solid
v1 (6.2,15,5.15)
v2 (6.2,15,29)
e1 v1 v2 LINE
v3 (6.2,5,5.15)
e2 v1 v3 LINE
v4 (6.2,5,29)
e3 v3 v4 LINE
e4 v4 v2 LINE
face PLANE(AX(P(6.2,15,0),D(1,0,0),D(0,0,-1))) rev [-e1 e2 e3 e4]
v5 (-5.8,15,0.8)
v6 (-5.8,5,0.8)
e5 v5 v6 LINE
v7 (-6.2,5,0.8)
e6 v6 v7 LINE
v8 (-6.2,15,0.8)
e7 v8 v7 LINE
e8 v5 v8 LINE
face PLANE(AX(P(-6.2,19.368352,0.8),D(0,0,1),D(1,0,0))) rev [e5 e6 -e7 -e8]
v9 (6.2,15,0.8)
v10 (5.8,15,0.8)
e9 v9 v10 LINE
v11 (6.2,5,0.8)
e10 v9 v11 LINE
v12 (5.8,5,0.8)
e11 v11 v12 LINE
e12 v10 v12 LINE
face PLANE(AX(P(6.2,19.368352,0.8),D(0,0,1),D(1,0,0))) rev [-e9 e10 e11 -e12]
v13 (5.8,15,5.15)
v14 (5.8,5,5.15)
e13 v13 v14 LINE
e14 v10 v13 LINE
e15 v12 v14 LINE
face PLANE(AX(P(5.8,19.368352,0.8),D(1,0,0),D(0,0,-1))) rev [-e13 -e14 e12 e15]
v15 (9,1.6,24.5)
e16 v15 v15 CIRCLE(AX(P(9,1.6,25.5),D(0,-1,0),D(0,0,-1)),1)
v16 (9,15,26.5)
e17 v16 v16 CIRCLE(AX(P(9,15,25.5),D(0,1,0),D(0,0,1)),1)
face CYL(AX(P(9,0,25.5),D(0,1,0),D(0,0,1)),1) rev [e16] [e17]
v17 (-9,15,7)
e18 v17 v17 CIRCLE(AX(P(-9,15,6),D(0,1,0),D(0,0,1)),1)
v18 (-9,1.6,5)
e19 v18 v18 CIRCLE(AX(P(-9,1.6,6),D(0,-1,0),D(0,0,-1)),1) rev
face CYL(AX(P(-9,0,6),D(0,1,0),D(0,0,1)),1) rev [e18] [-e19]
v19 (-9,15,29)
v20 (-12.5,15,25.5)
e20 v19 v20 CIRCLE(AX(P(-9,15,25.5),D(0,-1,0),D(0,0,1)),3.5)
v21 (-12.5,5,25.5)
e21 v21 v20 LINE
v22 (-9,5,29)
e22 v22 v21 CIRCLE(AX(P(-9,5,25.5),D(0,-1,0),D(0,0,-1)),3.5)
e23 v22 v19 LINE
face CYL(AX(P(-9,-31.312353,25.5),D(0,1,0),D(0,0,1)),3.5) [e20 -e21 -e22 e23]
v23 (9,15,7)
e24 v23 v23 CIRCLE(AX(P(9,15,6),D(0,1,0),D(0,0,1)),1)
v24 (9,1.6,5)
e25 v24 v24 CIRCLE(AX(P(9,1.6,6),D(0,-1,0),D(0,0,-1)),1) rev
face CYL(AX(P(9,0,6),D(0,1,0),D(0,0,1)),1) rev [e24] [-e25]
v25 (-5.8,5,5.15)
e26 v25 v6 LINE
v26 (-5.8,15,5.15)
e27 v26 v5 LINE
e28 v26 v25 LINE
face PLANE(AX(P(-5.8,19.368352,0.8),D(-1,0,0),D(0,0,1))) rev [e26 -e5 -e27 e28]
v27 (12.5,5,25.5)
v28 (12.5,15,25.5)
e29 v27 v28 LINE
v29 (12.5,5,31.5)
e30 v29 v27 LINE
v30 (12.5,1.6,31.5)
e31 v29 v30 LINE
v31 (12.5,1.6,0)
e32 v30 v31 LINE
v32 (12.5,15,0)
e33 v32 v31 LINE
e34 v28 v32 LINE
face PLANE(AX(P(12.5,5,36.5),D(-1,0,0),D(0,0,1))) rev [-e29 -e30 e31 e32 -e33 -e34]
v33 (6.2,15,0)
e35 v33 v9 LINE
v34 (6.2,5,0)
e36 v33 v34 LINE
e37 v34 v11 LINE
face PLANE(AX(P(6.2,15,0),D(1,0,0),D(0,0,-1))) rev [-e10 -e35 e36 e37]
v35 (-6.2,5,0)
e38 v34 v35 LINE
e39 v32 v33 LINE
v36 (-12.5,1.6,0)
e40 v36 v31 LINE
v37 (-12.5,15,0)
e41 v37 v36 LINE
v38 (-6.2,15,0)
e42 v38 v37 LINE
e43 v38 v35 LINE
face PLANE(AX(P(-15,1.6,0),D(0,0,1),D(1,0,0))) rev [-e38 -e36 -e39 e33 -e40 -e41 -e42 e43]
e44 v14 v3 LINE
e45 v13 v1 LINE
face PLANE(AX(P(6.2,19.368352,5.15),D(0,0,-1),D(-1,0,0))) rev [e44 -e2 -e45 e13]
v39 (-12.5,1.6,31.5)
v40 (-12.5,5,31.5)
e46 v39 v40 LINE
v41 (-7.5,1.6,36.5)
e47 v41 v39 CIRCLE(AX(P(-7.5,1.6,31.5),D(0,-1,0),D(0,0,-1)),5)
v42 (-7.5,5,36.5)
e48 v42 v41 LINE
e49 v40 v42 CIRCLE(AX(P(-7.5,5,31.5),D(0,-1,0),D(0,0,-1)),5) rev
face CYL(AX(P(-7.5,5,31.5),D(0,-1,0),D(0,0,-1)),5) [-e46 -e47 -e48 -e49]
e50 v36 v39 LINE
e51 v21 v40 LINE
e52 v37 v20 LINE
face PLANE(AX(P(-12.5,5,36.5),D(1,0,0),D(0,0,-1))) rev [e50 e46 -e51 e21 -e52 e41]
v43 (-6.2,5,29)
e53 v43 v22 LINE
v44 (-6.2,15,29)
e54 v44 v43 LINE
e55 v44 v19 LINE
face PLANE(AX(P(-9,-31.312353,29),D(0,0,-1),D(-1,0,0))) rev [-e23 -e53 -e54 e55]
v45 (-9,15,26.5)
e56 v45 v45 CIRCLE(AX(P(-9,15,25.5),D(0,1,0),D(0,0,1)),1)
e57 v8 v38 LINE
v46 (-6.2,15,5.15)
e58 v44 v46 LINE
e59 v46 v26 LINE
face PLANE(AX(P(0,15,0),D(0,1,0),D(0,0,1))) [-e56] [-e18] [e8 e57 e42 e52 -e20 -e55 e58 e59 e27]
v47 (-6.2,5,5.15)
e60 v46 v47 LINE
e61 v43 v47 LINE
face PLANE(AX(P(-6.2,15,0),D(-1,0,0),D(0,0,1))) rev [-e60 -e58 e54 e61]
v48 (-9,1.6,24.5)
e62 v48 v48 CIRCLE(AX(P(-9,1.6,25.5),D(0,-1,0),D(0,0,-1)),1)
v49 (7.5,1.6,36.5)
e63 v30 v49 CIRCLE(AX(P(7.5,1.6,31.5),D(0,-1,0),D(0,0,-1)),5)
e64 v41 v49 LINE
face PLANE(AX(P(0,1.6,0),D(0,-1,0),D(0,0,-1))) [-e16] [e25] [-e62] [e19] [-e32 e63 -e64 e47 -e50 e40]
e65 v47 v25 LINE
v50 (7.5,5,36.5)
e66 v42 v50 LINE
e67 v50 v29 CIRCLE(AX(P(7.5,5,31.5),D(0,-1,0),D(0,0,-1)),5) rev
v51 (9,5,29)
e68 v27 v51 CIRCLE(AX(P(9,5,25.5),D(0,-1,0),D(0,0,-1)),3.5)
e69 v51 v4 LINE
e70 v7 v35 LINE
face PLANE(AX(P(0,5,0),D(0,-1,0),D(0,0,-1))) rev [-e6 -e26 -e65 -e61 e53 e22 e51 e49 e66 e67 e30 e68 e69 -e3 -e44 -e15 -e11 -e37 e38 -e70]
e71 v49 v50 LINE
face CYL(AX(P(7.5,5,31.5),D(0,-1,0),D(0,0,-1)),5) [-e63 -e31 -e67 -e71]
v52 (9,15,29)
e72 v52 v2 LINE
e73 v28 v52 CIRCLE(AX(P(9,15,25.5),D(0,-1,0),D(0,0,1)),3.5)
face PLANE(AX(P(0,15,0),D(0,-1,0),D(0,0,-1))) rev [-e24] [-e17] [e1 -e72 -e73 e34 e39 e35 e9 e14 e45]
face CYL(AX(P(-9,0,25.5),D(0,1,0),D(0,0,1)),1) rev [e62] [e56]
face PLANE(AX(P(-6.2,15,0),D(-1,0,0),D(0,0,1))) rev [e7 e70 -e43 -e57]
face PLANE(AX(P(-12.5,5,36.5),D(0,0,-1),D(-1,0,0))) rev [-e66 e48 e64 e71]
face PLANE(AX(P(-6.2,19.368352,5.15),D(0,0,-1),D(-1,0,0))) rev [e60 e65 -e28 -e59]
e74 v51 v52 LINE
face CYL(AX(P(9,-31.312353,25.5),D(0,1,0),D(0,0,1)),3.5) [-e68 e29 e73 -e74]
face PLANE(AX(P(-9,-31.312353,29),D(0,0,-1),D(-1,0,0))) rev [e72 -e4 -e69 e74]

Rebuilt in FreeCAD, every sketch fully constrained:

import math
import FreeCAD as App
import Part
import Sketcher
Q = App.Units.Quantity


def edges_at(feature, points):
    """Names of the edges that pass closest to the given points."""
    edges = feature.Shape.Edges
    near = lambda p: min(range(len(edges)), key=lambda i: edges[i].distToShape(Part.Vertex(*p))[0])
    return sorted({f"Edge{near(p) + 1}" for p in points})


def add_polygon(sketch, points):
    """Adds a closed chain of lines whose ends are joined by coincident constraints."""
    first, n = sketch.GeometryCount, len(points)
    for a, b in zip(points, points[1:] + points[:1]):
        sketch.addGeometry(Part.LineSegment(App.Vector(*a, 0), App.Vector(*b, 0)), False)
    for i in range(n):
        sketch.addConstraint(Sketcher.Constraint("Coincident", first + i, 2, first + (i + 1) % n, 1))

doc = App.newDocument("Part")
body = doc.addObject("PartDesign::Body", "Body")

# Sketch on XZ plane
sketch1 = doc.addObject("Sketcher::SketchObject", "Sketch")
body.addObject(sketch1)
sketch1.AttachmentSupport = (doc.XZ_Plane, [""])
sketch1.MapMode = "FlatFace"
add_polygon(sketch1, [(-15, 0), (-15, 12), (15, 12), (15, 0)])  # lines 0-3
sketch1.addConstraint(Sketcher.Constraint("Vertical", 0))
sketch1.addConstraint(Sketcher.Constraint("Horizontal", 1))
sketch1.addConstraint(Sketcher.Constraint("Vertical", 2))
sketch1.addConstraint(Sketcher.Constraint("Horizontal", 3))
sketch1.addConstraint(Sketcher.Constraint("Symmetric", 2, 2, 3, 2, -1, 1))
sketch1.addConstraint(Sketcher.Constraint("DistanceX", 1, 1, 1, 2, Q("30 mm")))
sketch1.addConstraint(Sketcher.Constraint("DistanceY", 0, 1, 0, 2, Q("12.5 mm")))
pad1 = doc.addObject("PartDesign::Pad", "Pad")
body.addObject(pad1)
pad1.Profile = sketch1
pad1.Length = 1.6
pad1.Reversed = True

# Sketch on XZ plane
sketch2 = doc.addObject("Sketcher::SketchObject", "Sketch001")
body.addObject(sketch2)
sketch2.AttachmentSupport = (doc.XZ_Plane, [""])
sketch2.MapMode = "FlatFace"
sketch2.AttachmentOffset = App.Placement(App.Vector(0, 0, -1.6), App.Rotation())
add_polygon(sketch2, [(-12, 0), (-12, 36), (12, 36), (12, 0)])  # lines 0-3
sketch2.addConstraint(Sketcher.Constraint("Vertical", 0))
sketch2.addConstraint(Sketcher.Constraint("Horizontal", 1))
sketch2.addConstraint(Sketcher.Constraint("Vertical", 2))
sketch2.addConstraint(Sketcher.Constraint("Horizontal", 3))
sketch2.addConstraint(Sketcher.Constraint("Symmetric", 2, 2, 3, 2, -1, 1))
sketch2.addConstraint(Sketcher.Constraint("DistanceX", 1, 1, 1, 2, Q("25 mm")))
sketch2.addConstraint(Sketcher.Constraint("DistanceY", 0, 1, 0, 2, Q("36.5 mm")))
pad2 = doc.addObject("PartDesign::Pad", "Pad001")
body.addObject(pad2)
pad2.Profile = sketch2
pad2.Length = 3.4
pad2.Reversed = True

# Sketch on XZ plane
sketch3 = doc.addObject("Sketcher::SketchObject", "Sketch002")
body.addObject(sketch3)
sketch3.AttachmentSupport = (doc.XZ_Plane, [""])
sketch3.MapMode = "FlatFace"
sketch3.AttachmentOffset = App.Placement(App.Vector(0, 0, -5), App.Rotation())
add_polygon(sketch3, [(-12, 0), (-12, 30), (-6, 30), (-6, 0)])  # lines 0-3
add_polygon(sketch3, [(6, 0), (6, 30), (12, 30), (12, 0)])  # lines 4-7
sketch3.addConstraint(Sketcher.Constraint("Vertical", 0))
sketch3.addConstraint(Sketcher.Constraint("Horizontal", 1))
sketch3.addConstraint(Sketcher.Constraint("Vertical", 2))
sketch3.addConstraint(Sketcher.Constraint("Horizontal", 3))
sketch3.addConstraint(Sketcher.Constraint("Vertical", 4))
sketch3.addConstraint(Sketcher.Constraint("Horizontal", 5))
sketch3.addConstraint(Sketcher.Constraint("Vertical", 6))
sketch3.addConstraint(Sketcher.Constraint("Horizontal", 7))
sketch3.addConstraint(Sketcher.Constraint("Symmetric", 3, 2, 6, 2, -1, 1))
sketch3.addConstraint(Sketcher.Constraint("Symmetric", 1, 2, 4, 2, -2))
sketch3.addConstraint(Sketcher.Constraint("PointOnObject", 2, 2, -1))
sketch3.addConstraint(Sketcher.Constraint("DistanceY", 0, 1, 0, 2, Q("30 mm")))
sketch3.addConstraint(Sketcher.Constraint("DistanceX", 1, 1, 1, 2, Q("6.3 mm")))
sketch3.addConstraint(Sketcher.Constraint("DistanceX", 0, 2, 5, 2, Q("25 mm")))
pad3 = doc.addObject("PartDesign::Pad", "Pad002")
body.addObject(pad3)
pad3.Profile = sketch3
pad3.Length = 10
pad3.Reversed = True
doc.recompute()

fillet = doc.addObject("PartDesign::Fillet", "Fillet")
body.addObject(fillet)
fillet.Base = (pad3, edges_at(pad3, [(12.5, 3.3, 36.5), (-12.5, 3.3, 36.5)]))
fillet.Radius = 5

# Sketch on XZ plane
sketch4 = doc.addObject("Sketcher::SketchObject", "Sketch003")
body.addObject(sketch4)
sketch4.AttachmentSupport = (doc.XZ_Plane, [""])
sketch4.MapMode = "FlatFace"
sketch4.AttachmentOffset = App.Placement(App.Vector(0, 0, -15), App.Rotation())
sketch4.addGeometry(Part.Circle(App.Vector(-9, 25.5, 0), App.Vector(0, 0, 1), 1), False)
sketch4.addGeometry(Part.Circle(App.Vector(9, 25.5, 0), App.Vector(0, 0, 1), 1), False)
sketch4.addConstraint(Sketcher.Constraint("Equal", 0, 1))
sketch4.addConstraint(Sketcher.Constraint("Symmetric", 0, 3, 1, 3, -2))
sketch4.addConstraint(Sketcher.Constraint("Diameter", 0, Q("2 mm")))
sketch4.addConstraint(Sketcher.Constraint("DistanceX", 0, 3, -1, 1, Q("9 mm")))
sketch4.addConstraint(Sketcher.Constraint("DistanceY", -1, 1, 0, 3, Q("25.5 mm")))
pocket1 = doc.addObject("PartDesign::Pocket", "Pocket")
body.addObject(pocket1)
pocket1.Profile = sketch4
pocket1.Type = "ThroughAll"
pocket1.Reversed = True

# Sketch on XZ plane
sketch5 = doc.addObject("Sketcher::SketchObject", "Sketch004")
body.addObject(sketch5)
sketch5.AttachmentSupport = (doc.XZ_Plane, [""])
sketch5.MapMode = "FlatFace"
sketch5.AttachmentOffset = App.Placement(App.Vector(0, 0, -15), App.Rotation())
sketch5.addGeometry(Part.LineSegment(App.Vector(9, 29, 0), App.Vector(-9, 29, 0)), False)
sketch5.addGeometry(Part.ArcOfCircle(Part.Circle(App.Vector(-9, 25.5, 0), App.Vector(0, 0, 1), 3.5), math.radians(90), math.radians(180)), False)
sketch5.addGeometry(Part.LineSegment(App.Vector(-12.5, 25.5, 0), App.Vector(-17.7, 25.5, 0)), False)
sketch5.addGeometry(Part.LineSegment(App.Vector(-17.7, 25.5, 0), App.Vector(-17.7, 35.3, 0)), False)
sketch5.addGeometry(Part.LineSegment(App.Vector(-17.7, 35.3, 0), App.Vector(17.2, 35.6, 0)), False)
sketch5.addGeometry(Part.LineSegment(App.Vector(17.2, 35.6, 0), App.Vector(17.2, 25.5, 0)), False)
sketch5.addGeometry(Part.LineSegment(App.Vector(17.2, 25.5, 0), App.Vector(12.5, 25.5, 0)), False)
sketch5.addGeometry(Part.ArcOfCircle(Part.Circle(App.Vector(9, 25.5, 0), App.Vector(0, 0, 1), 3.5), math.radians(0), math.radians(90)), False)
sketch5.addConstraint(Sketcher.Constraint("Tangent", 0, 2, 1, 1))
sketch5.addConstraint(Sketcher.Constraint("Coincident", 1, 2, 2, 1))
sketch5.addConstraint(Sketcher.Constraint("Coincident", 2, 2, 3, 1))
sketch5.addConstraint(Sketcher.Constraint("Coincident", 3, 2, 4, 1))
sketch5.addConstraint(Sketcher.Constraint("Coincident", 4, 2, 5, 1))
sketch5.addConstraint(Sketcher.Constraint("Coincident", 5, 2, 6, 1))
sketch5.addConstraint(Sketcher.Constraint("Coincident", 6, 2, 7, 1))
sketch5.addConstraint(Sketcher.Constraint("Tangent", 7, 2, 0, 1))
sketch5.addConstraint(Sketcher.Constraint("Horizontal", 0))
sketch5.addConstraint(Sketcher.Constraint("Horizontal", 2))
sketch5.addConstraint(Sketcher.Constraint("Vertical", 3))
sketch5.addConstraint(Sketcher.Constraint("Vertical", 5))
sketch5.addConstraint(Sketcher.Constraint("Horizontal", 6))
sketch5.addConstraint(Sketcher.Constraint("Equal", 1, 7))
sketch5.addConstraint(Sketcher.Constraint("Symmetric", 1, 2, 6, 2, -2))
sketch5.addConstraint(Sketcher.Constraint("Horizontal", 7, 3, 1, 2))
sketch5.addConstraint(Sketcher.Constraint("Radius", 1, Q("3.5 mm")))
sketch5.addConstraint(Sketcher.Constraint("DistanceX", 0, 2, 0, 1, Q("18 mm")))
sketch5.addConstraint(Sketcher.Constraint("DistanceY", -1, 1, 0, 2, Q("29 mm")))
sketch5.addConstraint(Sketcher.Constraint("DistanceY", 3, 1, 3, 2, Q("9.820311 mm")))
sketch5.addConstraint(Sketcher.Constraint("Distance", 4, Q("34.872361 mm")))
sketch5.addConstraint(Sketcher.Constraint("DistanceX", 2, 2, 2, 1, Q("5.154965 mm")))
sketch5.addConstraint(Sketcher.Constraint("DistanceX", 6, 2, 6, 1, Q("4.716028 mm")))
pocket2 = doc.addObject("PartDesign::Pocket", "Pocket001")
body.addObject(pocket2)
pocket2.Profile = sketch5
pocket2.Length = 10
pocket2.Reversed = True

# Sketch on XZ plane
sketch6 = doc.addObject("Sketcher::SketchObject", "Sketch005")
body.addObject(sketch6)
sketch6.AttachmentSupport = (doc.XZ_Plane, [""])
sketch6.MapMode = "FlatFace"
sketch6.AttachmentOffset = App.Placement(App.Vector(0, 0, -5), App.Rotation())
add_polygon(sketch6, [(-6.2, 0.8), (-6.2, 5.15), (-5.8, 5.15), (-5.8, 0.8)])  # lines 0-3
add_polygon(sketch6, [(5.8, 0.8), (5.8, 5.15), (6.2, 5.15), (6.2, 0.8)])  # lines 4-7
sketch6.addConstraint(Sketcher.Constraint("Vertical", 0))
sketch6.addConstraint(Sketcher.Constraint("Horizontal", 1))
sketch6.addConstraint(Sketcher.Constraint("Vertical", 2))
sketch6.addConstraint(Sketcher.Constraint("Horizontal", 3))
sketch6.addConstraint(Sketcher.Constraint("Vertical", 4))
sketch6.addConstraint(Sketcher.Constraint("Horizontal", 5))
sketch6.addConstraint(Sketcher.Constraint("Vertical", 6))
sketch6.addConstraint(Sketcher.Constraint("Horizontal", 7))
sketch6.addConstraint(Sketcher.Constraint("Symmetric", 1, 2, 4, 2, -2))
sketch6.addConstraint(Sketcher.Constraint("Symmetric", 3, 2, 6, 2, -2))
sketch6.addConstraint(Sketcher.Constraint("DistanceX", 1, 1, 1, 2, Q("0.4 mm")))
sketch6.addConstraint(Sketcher.Constraint("DistanceX", 0, 2, 4, 2, Q("12 mm")))
sketch6.addConstraint(Sketcher.Constraint("DistanceY", 0, 1, 0, 2, Q("4.35 mm")))
sketch6.addConstraint(Sketcher.Constraint("DistanceY", -1, 1, 2, 2, Q("0.8 mm")))
pad4 = doc.addObject("PartDesign::Pad", "Pad003")
body.addObject(pad4)
pad4.Profile = sketch6
pad4.Length = 10
pad4.Reversed = True

# Sketch on XZ plane
sketch7 = doc.addObject("Sketcher::SketchObject", "Sketch006")
body.addObject(sketch7)
sketch7.AttachmentSupport = (doc.XZ_Plane, [""])
sketch7.MapMode = "FlatFace"
sketch7.AttachmentOffset = App.Placement(App.Vector(0, 0, -15), App.Rotation())
sketch7.addGeometry(Part.Circle(App.Vector(-9, 6, 0), App.Vector(0, 0, 1), 1), False)
sketch7.addGeometry(Part.Circle(App.Vector(9, 6, 0), App.Vector(0, 0, 1), 1), False)
sketch7.addConstraint(Sketcher.Constraint("Equal", 0, 1))
sketch7.addConstraint(Sketcher.Constraint("Symmetric", 0, 3, 1, 3, -2))
sketch7.addConstraint(Sketcher.Constraint("Diameter", 0, Q("2 mm")))
sketch7.addConstraint(Sketcher.Constraint("DistanceX", 0, 3, -1, 1, Q("9 mm")))
sketch7.addConstraint(Sketcher.Constraint("DistanceY", -1, 1, 0, 3, Q("6 mm")))
pocket3 = doc.addObject("PartDesign::Pocket", "Pocket002")
body.addObject(pocket3)
pocket3.Profile = sketch7
pocket3.Type = "ThroughAll"
pocket3.Reversed = True

# Sketch on XZ plane
sketch8 = doc.addObject("Sketcher::SketchObject", "Sketch007")
body.addObject(sketch8)
sketch8.AttachmentSupport = (doc.XZ_Plane, [""])
sketch8.MapMode = "FlatFace"
add_polygon(sketch8, [(-18, 15), (-18, -2), (18, -2), (18, 15)])  # lines 0-3
sketch8.addConstraint(Sketcher.Constraint("Vertical", 0))
sketch8.addConstraint(Sketcher.Constraint("Horizontal", 1))
sketch8.addConstraint(Sketcher.Constraint("Vertical", 2))
sketch8.addConstraint(Sketcher.Constraint("Horizontal", 3))
sketch8.addConstraint(Sketcher.Constraint("DistanceY", 0, 2, 0, 1, Q("16.907618 mm")))
sketch8.addConstraint(Sketcher.Constraint("DistanceX", 1, 1, 1, 2, Q("36.216016 mm")))
sketch8.addConstraint(Sketcher.Constraint("DistanceX", 0, 2, -1, 1, Q("18.440031 mm")))
sketch8.addConstraint(Sketcher.Constraint("DistanceY", 0, 2, -1, 1, Q("2.054491 mm")))
pocket4 = doc.addObject("PartDesign::Pocket", "Pocket003")
body.addObject(pocket4)
pocket4.Profile = sketch8
pocket4.Length = 1.6

doc.recompute()
